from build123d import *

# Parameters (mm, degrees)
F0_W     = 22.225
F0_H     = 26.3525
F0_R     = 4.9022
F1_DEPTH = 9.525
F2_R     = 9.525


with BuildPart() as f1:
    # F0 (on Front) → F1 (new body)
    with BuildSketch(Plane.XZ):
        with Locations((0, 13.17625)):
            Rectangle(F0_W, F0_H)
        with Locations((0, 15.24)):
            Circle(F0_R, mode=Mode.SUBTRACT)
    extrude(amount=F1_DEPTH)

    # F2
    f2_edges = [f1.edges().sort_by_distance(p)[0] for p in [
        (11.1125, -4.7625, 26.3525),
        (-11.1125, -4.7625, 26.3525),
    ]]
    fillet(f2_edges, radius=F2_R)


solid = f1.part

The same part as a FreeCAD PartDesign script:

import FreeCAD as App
import Part
import Sketcher
Q = App.Units.Quantity


def edges_at(feature, points):
    """Names of the edges that pass closest to the given points."""
    edges = feature.Shape.Edges
    near = lambda p: min(range(len(edges)), key=lambda i: edges[i].distToShape(Part.Vertex(*p))[0])
    return sorted({f"Edge{near(p) + 1}" for p in points})

doc = App.newDocument("Part")
body = doc.addObject("PartDesign::Body", "Body")

# Sketch on XZ plane
sketch1 = body.newObject("Sketcher::SketchObject", "Sketch")
sketch1.AttachmentSupport = (doc.getObject("XZ_Plane"), [""])
sketch1.MapMode = "FlatFace"
sketch1.addGeometry([
    Part.LineSegment(App.Vector(-11.1125, 26.3525, 0), App.Vector(-11.1125, 0, 0)),  # 0
    Part.LineSegment(App.Vector(-11.1125, 0, 0), App.Vector(11.1125, 0, 0)),  # 1
    Part.LineSegment(App.Vector(11.1125, 0, 0), App.Vector(11.1125, 26.3525, 0)),  # 2
    Part.LineSegment(App.Vector(11.1125, 26.3525, 0), App.Vector(-11.1125, 26.3525, 0)),  # 3
    Part.Circle(App.Vector(0, 15.24, 0), App.Vector(0, 0, 1), 4.9022),  # 4
], False)
sketch1.addConstraint([
    Sketcher.Constraint("Coincident", 0, 2, 1, 1),
    Sketcher.Constraint("Coincident", 1, 2, 2, 1),
    Sketcher.Constraint("Coincident", 2, 2, 3, 1),
    Sketcher.Constraint("Coincident", 3, 2, 0, 1),
    Sketcher.Constraint("Vertical", 0),
    Sketcher.Constraint("Horizontal", 1),
    Sketcher.Constraint("Vertical", 2),
    Sketcher.Constraint("Horizontal", 3),
    Sketcher.Constraint("Symmetric", 0, 2, 1, 2, -1, 1),
    Sketcher.Constraint("PointOnObject", 4, 3, -2),
    Sketcher.Constraint("Diameter", 4, Q("0.386 in")),
    Sketcher.Constraint("DistanceY", -1, 1, 4, 3, Q("0.6 in")),
    Sketcher.Constraint("DistanceX", 1, 1, 1, 2, Q("0.875 in")),
    Sketcher.Constraint("DistanceY", 0, 2, 0, 1, Q("1.0375 in")),
])
pad1 = body.newObject("PartDesign::Pad", "Pad")
pad1.Profile = sketch1
pad1.Length = Q("0.375 in")
doc.recompute()

fillet = body.newObject("PartDesign::Fillet", "Fillet")
fillet.Base = (pad1, edges_at(pad1, [(11.113, -4.763, 26.352), (-11.113, -4.763, 26.352)]))
fillet.Radius = Q("0.375 in")

doc.recompute()
